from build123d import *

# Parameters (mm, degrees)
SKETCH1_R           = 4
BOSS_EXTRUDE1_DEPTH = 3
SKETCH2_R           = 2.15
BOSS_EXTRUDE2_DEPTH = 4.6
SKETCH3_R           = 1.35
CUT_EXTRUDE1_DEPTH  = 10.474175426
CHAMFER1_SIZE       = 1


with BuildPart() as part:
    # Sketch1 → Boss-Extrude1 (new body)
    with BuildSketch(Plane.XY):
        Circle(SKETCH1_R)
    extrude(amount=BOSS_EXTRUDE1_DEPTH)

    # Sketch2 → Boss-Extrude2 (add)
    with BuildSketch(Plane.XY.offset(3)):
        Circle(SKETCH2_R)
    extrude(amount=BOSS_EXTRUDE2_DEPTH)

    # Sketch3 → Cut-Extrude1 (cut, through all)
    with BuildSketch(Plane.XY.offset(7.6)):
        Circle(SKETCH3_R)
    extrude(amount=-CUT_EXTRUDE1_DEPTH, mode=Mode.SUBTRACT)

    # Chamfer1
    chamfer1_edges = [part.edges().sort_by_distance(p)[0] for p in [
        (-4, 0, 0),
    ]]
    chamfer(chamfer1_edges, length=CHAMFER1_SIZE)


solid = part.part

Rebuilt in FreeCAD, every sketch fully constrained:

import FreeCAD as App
import Part
import Sketcher
from FreeCAD import Vector


def edges_at(feature, points):
    """Names of the edges that pass closest to the given points."""
    edges = feature.Shape.Edges
    near = lambda p: min(range(len(edges)), key=lambda i: edges[i].distToShape(Part.Vertex(*p))[0])
    return sorted({f"Edge{near(p) + 1}" for p in points})

doc = App.newDocument("Part")
body = doc.addObject("PartDesign::Body", "Body")

sketch1 = body.newObject("Sketcher::SketchObject", "Sketch")
sketch1.AttachmentSupport = (doc.getObject("XY_Plane"), [""])
sketch1.MapMode = "FlatFace"
sketch1.addGeometry(Part.Circle(Vector(0, 0, 0), Vector(0, 0, 1), 4), False)
sketch1.addConstraint(Sketcher.Constraint("Coincident", 0, 3, -1, 1))
sketch1.addConstraint(Sketcher.Constraint("Diameter", 0, 8.0))
pad1 = body.newObject("PartDesign::Pad", "Pad")
pad1.Profile = sketch1
pad1.Length = 3

sketch2 = body.newObject("Sketcher::SketchObject", "Sketch001")
sketch2.AttachmentSupport = (doc.getObject("XY_Plane"), [""])
sketch2.MapMode = "FlatFace"
sketch2.AttachmentOffset = App.Placement(Vector(0, 0, 3), App.Rotation())
sketch2.addGeometry(Part.Circle(Vector(0, 0, 0), Vector(0, 0, 1), 2.1), False)
sketch2.addConstraint(Sketcher.Constraint("Coincident", 0, 3, -1, 1))
sketch2.addConstraint(Sketcher.Constraint("Diameter", 0, 4.3))
pad2 = body.newObject("PartDesign::Pad", "Pad001")
pad2.Profile = sketch2
pad2.Length = 4.6

sketch3 = body.newObject("Sketcher::SketchObject", "Sketch002")
sketch3.AttachmentSupport = (doc.getObject("XY_Plane"), [""])
sketch3.MapMode = "FlatFace"
sketch3.AttachmentOffset = App.Placement(Vector(0, 0, 7.6), App.Rotation())
sketch3.addGeometry(Part.Circle(Vector(0, 0, 0), Vector(0, 0, 1), 1.4), False)
sketch3.addConstraint(Sketcher.Constraint("Coincident", 0, 3, -1, 1))
sketch3.addConstraint(Sketcher.Constraint("Diameter", 0, 2.7))
pocket1 = body.newObject("PartDesign::Pocket", "Pocket")
pocket1.Profile = sketch3
pocket1.Type = "ThroughAll"
doc.recompute()

chamfer = body.newObject("PartDesign::Chamfer", "Chamfer")
chamfer.Base = (pocket1, edges_at(pocket1, [(-4, 0, 0)]))
chamfer.Size = 1

doc.recompute()
